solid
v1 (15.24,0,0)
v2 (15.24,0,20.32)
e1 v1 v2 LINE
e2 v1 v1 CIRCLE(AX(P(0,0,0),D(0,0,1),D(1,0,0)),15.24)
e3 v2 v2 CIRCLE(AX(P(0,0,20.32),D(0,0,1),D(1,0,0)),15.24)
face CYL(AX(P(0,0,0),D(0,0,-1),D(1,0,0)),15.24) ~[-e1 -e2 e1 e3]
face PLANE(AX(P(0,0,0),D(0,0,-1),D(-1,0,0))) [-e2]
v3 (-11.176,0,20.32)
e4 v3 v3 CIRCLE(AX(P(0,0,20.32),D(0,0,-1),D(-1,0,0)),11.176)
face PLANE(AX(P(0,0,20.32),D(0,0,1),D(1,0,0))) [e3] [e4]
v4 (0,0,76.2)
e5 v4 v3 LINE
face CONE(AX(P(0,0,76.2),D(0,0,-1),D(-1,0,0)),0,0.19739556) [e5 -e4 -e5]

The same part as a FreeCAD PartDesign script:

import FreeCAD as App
import Part
import Sketcher

V = App.Vector
Q = App.Units.Quantity


def add_polygon(sketch, points):
    """Adds a closed chain of lines whose ends are joined by coincident constraints."""
    first, n = sketch.GeometryCount, len(points)
    for a, b in zip(points, points[1:] + points[:1]):
        sketch.addGeometry(Part.LineSegment(App.Vector(*a, 0), App.Vector(*b, 0)), False)
    for i in range(n):
        sketch.addConstraint(Sketcher.Constraint("Coincident", first + i, 2, first + (i + 1) % n, 1))

doc = App.newDocument("Part")
body = doc.addObject("PartDesign::Body", "Body")

# Sketch on XZ plane
sketch1 = body.newObject("Sketcher::SketchObject", "Sketch")
sketch1.AttachmentSupport = (doc.getObject("XZ_Plane"), [""])
sketch1.MapMode = "FlatFace"
add_polygon(sketch1, [(-15, 0), (0, 0), (0, 76)])  # lines 0-2
sketch1.addConstraint([
    Sketcher.Constraint("Horizontal", 0),
    Sketcher.Constraint("Vertical", 1),
    Sketcher.Constraint("Coincident", 0, 2, -1, 1),
    Sketcher.Constraint("DistanceY", 1, 1, 1, 2, Q("3 in")),
    Sketcher.Constraint("DistanceX", 0, 1, 0, 2, Q("0.6 in")),
])
revolution = body.newObject("PartDesign::Revolution", "Revolution")
revolution.Profile = sketch1
revolution.ReferenceAxis = (sketch1, ["V_Axis"])
revolution.Angle = 360

# Sketch on XY plane
sketch2 = body.newObject("Sketcher::SketchObject", "Sketch001")
sketch2.AttachmentSupport = (doc.getObject("XY_Plane"), [""])
sketch2.MapMode = "FlatFace"
sketch2.addGeometry(Part.Circle(V(0, 0, 0), V(0, 0, 1), 15), False)
sketch2.addConstraint([
    Sketcher.Constraint("Coincident", 0, 3, -1, 1),
    Sketcher.Constraint("Diameter", 0, Q("1.2 in")),
])
pad1 = body.newObject("PartDesign::Pad", "Pad")
pad1.Profile = sketch2
pad1.Length = Q("0.8 in")

doc.recompute()
